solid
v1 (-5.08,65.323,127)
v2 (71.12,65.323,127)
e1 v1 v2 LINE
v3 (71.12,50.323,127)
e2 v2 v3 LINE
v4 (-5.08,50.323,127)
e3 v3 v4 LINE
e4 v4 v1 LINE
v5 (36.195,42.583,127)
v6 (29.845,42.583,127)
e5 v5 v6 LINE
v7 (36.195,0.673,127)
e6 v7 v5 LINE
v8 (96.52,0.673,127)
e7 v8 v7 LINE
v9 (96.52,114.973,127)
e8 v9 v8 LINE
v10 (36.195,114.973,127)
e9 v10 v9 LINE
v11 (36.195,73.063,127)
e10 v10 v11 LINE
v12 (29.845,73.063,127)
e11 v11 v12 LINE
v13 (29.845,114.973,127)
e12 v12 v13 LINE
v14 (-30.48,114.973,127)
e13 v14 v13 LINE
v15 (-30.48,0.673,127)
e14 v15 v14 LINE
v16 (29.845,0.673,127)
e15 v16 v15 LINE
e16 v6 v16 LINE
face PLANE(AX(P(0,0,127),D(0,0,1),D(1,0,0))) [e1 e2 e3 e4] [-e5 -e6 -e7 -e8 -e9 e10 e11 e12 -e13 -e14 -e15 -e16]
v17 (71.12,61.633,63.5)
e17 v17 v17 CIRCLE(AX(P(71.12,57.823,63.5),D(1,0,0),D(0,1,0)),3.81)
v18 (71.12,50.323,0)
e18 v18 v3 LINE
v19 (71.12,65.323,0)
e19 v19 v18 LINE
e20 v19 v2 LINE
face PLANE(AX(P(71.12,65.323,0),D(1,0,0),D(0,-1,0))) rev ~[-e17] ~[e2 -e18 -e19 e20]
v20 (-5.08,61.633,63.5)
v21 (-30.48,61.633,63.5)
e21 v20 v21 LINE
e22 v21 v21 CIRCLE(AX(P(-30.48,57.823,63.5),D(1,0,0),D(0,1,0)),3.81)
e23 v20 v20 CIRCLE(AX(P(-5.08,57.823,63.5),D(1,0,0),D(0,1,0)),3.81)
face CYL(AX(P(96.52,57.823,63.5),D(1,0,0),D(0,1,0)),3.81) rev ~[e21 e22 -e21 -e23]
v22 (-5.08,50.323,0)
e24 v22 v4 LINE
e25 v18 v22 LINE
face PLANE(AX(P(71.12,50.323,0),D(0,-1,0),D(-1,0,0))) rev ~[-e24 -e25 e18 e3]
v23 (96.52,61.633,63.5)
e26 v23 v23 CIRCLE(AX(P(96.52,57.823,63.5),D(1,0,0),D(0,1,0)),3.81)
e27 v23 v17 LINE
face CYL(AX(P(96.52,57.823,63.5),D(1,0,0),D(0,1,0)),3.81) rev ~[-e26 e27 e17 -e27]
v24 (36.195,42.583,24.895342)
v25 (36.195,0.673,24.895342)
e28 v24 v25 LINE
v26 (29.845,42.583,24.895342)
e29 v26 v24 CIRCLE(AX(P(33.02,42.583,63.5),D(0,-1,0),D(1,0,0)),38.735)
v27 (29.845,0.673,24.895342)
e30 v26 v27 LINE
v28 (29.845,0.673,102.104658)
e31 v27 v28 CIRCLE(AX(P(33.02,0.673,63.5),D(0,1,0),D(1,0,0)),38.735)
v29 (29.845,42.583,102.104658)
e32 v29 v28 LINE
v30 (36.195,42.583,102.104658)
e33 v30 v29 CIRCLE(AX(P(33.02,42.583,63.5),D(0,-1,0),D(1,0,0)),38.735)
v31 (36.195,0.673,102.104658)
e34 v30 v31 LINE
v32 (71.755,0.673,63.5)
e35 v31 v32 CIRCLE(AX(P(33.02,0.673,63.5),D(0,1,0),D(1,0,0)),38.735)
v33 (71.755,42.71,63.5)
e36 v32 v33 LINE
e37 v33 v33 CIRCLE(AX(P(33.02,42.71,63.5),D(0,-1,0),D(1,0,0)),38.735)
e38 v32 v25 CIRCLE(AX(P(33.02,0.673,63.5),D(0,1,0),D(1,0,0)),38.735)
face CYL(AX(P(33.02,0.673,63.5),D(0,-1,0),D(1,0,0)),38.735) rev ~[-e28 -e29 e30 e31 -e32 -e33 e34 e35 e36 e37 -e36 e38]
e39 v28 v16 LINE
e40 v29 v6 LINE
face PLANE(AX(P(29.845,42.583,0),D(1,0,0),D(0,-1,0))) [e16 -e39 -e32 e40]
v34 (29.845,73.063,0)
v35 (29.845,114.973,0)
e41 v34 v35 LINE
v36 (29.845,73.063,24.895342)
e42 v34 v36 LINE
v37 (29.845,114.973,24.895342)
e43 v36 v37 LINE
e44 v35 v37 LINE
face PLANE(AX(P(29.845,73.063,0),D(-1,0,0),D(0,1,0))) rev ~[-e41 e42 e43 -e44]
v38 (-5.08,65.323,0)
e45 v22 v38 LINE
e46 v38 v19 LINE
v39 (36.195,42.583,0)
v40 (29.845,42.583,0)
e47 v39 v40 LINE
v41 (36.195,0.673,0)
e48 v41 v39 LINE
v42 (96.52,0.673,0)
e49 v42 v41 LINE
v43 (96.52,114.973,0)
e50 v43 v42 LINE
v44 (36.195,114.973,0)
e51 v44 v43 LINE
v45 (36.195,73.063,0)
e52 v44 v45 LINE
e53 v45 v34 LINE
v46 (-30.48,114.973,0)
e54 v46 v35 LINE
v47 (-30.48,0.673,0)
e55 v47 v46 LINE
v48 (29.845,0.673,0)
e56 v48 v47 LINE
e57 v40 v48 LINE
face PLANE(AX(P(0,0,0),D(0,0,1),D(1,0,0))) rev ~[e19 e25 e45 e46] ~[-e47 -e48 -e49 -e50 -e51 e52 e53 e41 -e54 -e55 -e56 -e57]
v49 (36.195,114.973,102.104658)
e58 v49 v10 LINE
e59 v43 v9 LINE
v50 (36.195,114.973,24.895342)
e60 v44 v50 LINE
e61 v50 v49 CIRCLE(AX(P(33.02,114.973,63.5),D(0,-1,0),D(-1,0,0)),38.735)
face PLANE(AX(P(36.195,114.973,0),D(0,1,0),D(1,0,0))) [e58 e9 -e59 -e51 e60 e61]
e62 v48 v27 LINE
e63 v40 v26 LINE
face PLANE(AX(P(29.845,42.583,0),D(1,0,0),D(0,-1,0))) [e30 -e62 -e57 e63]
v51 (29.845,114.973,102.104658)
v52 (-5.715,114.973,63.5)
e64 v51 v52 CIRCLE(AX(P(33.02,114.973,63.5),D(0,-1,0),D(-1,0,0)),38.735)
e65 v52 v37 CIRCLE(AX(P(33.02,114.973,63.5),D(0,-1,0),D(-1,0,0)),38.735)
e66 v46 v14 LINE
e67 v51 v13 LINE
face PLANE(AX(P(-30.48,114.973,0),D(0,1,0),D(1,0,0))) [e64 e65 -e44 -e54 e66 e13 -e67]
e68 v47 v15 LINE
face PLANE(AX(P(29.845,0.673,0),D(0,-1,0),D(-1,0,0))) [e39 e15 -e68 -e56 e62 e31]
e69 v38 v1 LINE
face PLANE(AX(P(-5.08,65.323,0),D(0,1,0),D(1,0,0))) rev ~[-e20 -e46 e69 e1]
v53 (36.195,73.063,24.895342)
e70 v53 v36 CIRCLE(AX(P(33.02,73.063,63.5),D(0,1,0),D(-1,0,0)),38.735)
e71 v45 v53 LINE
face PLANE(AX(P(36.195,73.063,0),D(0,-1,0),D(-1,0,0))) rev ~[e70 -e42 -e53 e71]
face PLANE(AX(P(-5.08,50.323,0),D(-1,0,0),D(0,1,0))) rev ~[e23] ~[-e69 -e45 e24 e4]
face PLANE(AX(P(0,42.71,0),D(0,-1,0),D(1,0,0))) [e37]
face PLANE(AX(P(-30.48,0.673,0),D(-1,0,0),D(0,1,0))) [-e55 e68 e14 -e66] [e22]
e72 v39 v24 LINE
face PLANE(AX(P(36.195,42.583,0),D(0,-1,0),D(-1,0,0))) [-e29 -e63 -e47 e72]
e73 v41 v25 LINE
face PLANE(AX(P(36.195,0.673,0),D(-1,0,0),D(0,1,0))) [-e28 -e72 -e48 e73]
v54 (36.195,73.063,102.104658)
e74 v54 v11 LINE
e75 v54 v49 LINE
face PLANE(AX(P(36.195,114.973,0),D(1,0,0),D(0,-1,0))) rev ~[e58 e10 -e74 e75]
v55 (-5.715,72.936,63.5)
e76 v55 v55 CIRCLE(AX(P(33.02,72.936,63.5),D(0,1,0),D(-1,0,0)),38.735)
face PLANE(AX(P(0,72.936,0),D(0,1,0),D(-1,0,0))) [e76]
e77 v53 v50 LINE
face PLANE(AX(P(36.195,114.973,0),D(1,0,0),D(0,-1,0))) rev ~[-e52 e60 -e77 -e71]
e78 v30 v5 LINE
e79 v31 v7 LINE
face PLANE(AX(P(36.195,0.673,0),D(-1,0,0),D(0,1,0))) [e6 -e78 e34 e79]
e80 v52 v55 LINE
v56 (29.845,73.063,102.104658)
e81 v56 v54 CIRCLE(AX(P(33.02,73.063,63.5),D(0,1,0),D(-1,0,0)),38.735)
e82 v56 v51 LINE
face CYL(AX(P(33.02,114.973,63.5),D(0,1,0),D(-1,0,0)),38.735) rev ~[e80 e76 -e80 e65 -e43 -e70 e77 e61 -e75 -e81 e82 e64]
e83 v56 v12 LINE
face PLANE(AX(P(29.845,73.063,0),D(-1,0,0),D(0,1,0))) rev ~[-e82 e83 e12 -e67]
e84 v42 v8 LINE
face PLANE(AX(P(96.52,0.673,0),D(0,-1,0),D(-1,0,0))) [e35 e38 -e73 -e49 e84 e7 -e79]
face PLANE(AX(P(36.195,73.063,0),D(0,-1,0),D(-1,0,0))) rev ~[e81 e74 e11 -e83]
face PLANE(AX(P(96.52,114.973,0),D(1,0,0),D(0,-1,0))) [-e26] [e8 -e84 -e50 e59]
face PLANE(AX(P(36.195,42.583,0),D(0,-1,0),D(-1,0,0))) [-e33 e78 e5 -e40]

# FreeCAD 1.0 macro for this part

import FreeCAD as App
import Part
import Sketcher
Q = App.Units.Quantity


def add_polygon(sketch, points):
    """Adds a closed chain of lines whose ends are joined by coincident constraints."""
    first, n = sketch.GeometryCount, len(points)
    for a, b in zip(points, points[1:] + points[:1]):
        sketch.addGeometry(Part.LineSegment(App.Vector(*a, 0), App.Vector(*b, 0)), False)
    for i in range(n):
        sketch.addConstraint(Sketcher.Constraint("Coincident", first + i, 2, first + (i + 1) % n, 1))

doc = App.newDocument("Part")
body = doc.addObject("PartDesign::Body", "Body")

# Sketch on XY plane
sketch1 = body.newObject("Sketcher::SketchObject", "Sketch")
sketch1.AttachmentSupport = (doc.getObject("XY_Plane"), [""])
sketch1.MapMode = "FlatFace"
add_polygon(sketch1, [(30, 115), (-30, 115), (-30, 1), (30, 1), (30, 43), (36, 43), (36, 1), (97, 1), (97, 115), (36, 115), (36, 73), (30, 73)])  # lines 0-11
add_polygon(sketch1, [(-5, 50), (-5, 65), (71, 65), (71, 50)])  # lines 12-15
sketch1.addConstraint(Sketcher.Constraint("Horizontal", 0))
sketch1.addConstraint(Sketcher.Constraint("Vertical", 1))
sketch1.addConstraint(Sketcher.Constraint("Horizontal", 2))
sketch1.addConstraint(Sketcher.Constraint("Vertical", 3))
sketch1.addConstraint(Sketcher.Constraint("Horizontal", 4))
sketch1.addConstraint(Sketcher.Constraint("Vertical", 5))
sketch1.addConstraint(Sketcher.Constraint("Horizontal", 6))
sketch1.addConstraint(Sketcher.Constraint("Vertical", 7))
sketch1.addConstraint(Sketcher.Constraint("Horizontal", 8))
sketch1.addConstraint(Sketcher.Constraint("Vertical", 9))
sketch1.addConstraint(Sketcher.Constraint("Horizontal", 10))
sketch1.addConstraint(Sketcher.Constraint("Vertical", 11))
sketch1.addConstraint(Sketcher.Constraint("Vertical", 12))
sketch1.addConstraint(Sketcher.Constraint("Horizontal", 13))
sketch1.addConstraint(Sketcher.Constraint("Vertical", 14))
sketch1.addConstraint(Sketcher.Constraint("Horizontal", 15))
sketch1.addConstraint(Sketcher.Constraint("Horizontal", 2, 2, 5, 2))
sketch1.addConstraint(Sketcher.Constraint("Horizontal", 0, 2, 7, 2))
sketch1.addConstraint(Sketcher.Constraint("Vertical", 5, 2, 8, 2))
sketch1.addConstraint(Sketcher.Constraint("Vertical", 3, 2, 10, 2))
sketch1.addConstraint(Sketcher.Constraint("Equal", 2, 6))
sketch1.addConstraint(Sketcher.Constraint("Equal", 5, 9))
sketch1.addConstraint(Sketcher.Constraint("DistanceX", 13, 1, 13, 2, Q("3 in")))
sketch1.addConstraint(Sketcher.Constraint("DistanceY", 1, 2, 1, 1, Q("4.5 in")))
sketch1.addConstraint(Sketcher.Constraint("DistanceX", 1, 2, 6, 2, Q("5 in")))
sketch1.addConstraint(Sketcher.Constraint("DistanceX", 0, 2, 12, 2, Q("1 in")))
sketch1.addConstraint(Sketcher.Constraint("DistanceX", 4, 1, 4, 2, Q("0.25 in")))
sketch1.addConstraint(Sketcher.Constraint("DistanceY", 3, 1, 3, 2, Q("1.65 in")))
sketch1.addConstraint(Sketcher.Constraint("DistanceY", 12, 1, 12, 2, Q("15 mm")))
sketch1.addConstraint(Sketcher.Constraint("DistanceX", 0, 2, -1, 1, Q("1.2 in")))
sketch1.addConstraint(Sketcher.Constraint("DistanceY", 12, 2, 0, 2, Q("49.65 mm")))
sketch1.addConstraint(Sketcher.Constraint("DistanceY", -1, 1, 0, 2, Q("4.5265 in")))
pad1 = body.newObject("PartDesign::Pad", "Pad")
pad1.Profile = sketch1
pad1.Length = Q("5 in")

# Sketch on XZ plane
sketch2 = body.newObject("Sketcher::SketchObject", "Sketch001")
sketch2.AttachmentSupport = (doc.getObject("XZ_Plane"), [""])
sketch2.MapMode = "FlatFace"
sketch2.AttachmentOffset = App.Placement(App.Vector(0, 0, -0.0264961 * 25.4), App.Rotation())
sketch2.addGeometry(Part.Circle(App.Vector(33, 64, 0), App.Vector(0, 0, 1), 39), False)
sketch2.addConstraint(Sketcher.Constraint("Diameter", 0, Q("3.05 in")))
sketch2.addConstraint(Sketcher.Constraint("DistanceY", -1, 1, 0, 3, Q("2.5 in")))
sketch2.addConstraint(Sketcher.Constraint("DistanceX", -1, 1, 0, 3, Q("1.3 in")))
pocket1 = body.newObject("PartDesign::Pocket", "Pocket")
pocket1.Profile = sketch2
pocket1.Length = Q("1.655 in")

# Sketch on XZ plane
sketch3 = body.newObject("Sketcher::SketchObject", "Sketch002")
sketch3.AttachmentSupport = (doc.getObject("XZ_Plane"), [""])
sketch3.MapMode = "FlatFace"
sketch3.AttachmentOffset = App.Placement(App.Vector(0, 0, -4.5264961 * 25.4), App.Rotation())
sketch3.addGeometry(Part.Circle(App.Vector(33, 64, 0), App.Vector(0, 0, 1), 39), False)
sketch3.addConstraint(Sketcher.Constraint("Diameter", 0, Q("3.05 in")))
sketch3.addConstraint(Sketcher.Constraint("DistanceY", -1, 1, 0, 3, Q("2.5 in")))
sketch3.addConstraint(Sketcher.Constraint("DistanceX", -1, 1, 0, 3, Q("1.3 in")))
pocket2 = body.newObject("PartDesign::Pocket", "Pocket001")
pocket2.Profile = sketch3
pocket2.Length = Q("1.655 in")
pocket2.Reversed = True

# Sketch on YZ plane
sketch4 = body.newObject("Sketcher::SketchObject", "Sketch003")
sketch4.AttachmentSupport = (doc.getObject("YZ_Plane"), [""])
sketch4.MapMode = "FlatFace"
sketch4.AttachmentOffset = App.Placement(App.Vector(0, 0, 3.8 * 25.4), App.Rotation())
sketch4.addGeometry(Part.Circle(App.Vector(57.8, 63.5, 0), App.Vector(0, 0, 1), 3.8), False)
sketch4.addConstraint(Sketcher.Constraint("Diameter", 0, Q("0.3 in")))
sketch4.addConstraint(Sketcher.Constraint("DistanceY", -1, 1, 0, 3, Q("2.5 in")))
sketch4.addConstraint(Sketcher.Constraint("DistanceX", -1, 1, 0, 3, Q("2.2765 in")))
pocket3 = body.newObject("PartDesign::Pocket", "Pocket002")
pocket3.Profile = sketch4
pocket3.Length = Q("5 in")

doc.recompute()
